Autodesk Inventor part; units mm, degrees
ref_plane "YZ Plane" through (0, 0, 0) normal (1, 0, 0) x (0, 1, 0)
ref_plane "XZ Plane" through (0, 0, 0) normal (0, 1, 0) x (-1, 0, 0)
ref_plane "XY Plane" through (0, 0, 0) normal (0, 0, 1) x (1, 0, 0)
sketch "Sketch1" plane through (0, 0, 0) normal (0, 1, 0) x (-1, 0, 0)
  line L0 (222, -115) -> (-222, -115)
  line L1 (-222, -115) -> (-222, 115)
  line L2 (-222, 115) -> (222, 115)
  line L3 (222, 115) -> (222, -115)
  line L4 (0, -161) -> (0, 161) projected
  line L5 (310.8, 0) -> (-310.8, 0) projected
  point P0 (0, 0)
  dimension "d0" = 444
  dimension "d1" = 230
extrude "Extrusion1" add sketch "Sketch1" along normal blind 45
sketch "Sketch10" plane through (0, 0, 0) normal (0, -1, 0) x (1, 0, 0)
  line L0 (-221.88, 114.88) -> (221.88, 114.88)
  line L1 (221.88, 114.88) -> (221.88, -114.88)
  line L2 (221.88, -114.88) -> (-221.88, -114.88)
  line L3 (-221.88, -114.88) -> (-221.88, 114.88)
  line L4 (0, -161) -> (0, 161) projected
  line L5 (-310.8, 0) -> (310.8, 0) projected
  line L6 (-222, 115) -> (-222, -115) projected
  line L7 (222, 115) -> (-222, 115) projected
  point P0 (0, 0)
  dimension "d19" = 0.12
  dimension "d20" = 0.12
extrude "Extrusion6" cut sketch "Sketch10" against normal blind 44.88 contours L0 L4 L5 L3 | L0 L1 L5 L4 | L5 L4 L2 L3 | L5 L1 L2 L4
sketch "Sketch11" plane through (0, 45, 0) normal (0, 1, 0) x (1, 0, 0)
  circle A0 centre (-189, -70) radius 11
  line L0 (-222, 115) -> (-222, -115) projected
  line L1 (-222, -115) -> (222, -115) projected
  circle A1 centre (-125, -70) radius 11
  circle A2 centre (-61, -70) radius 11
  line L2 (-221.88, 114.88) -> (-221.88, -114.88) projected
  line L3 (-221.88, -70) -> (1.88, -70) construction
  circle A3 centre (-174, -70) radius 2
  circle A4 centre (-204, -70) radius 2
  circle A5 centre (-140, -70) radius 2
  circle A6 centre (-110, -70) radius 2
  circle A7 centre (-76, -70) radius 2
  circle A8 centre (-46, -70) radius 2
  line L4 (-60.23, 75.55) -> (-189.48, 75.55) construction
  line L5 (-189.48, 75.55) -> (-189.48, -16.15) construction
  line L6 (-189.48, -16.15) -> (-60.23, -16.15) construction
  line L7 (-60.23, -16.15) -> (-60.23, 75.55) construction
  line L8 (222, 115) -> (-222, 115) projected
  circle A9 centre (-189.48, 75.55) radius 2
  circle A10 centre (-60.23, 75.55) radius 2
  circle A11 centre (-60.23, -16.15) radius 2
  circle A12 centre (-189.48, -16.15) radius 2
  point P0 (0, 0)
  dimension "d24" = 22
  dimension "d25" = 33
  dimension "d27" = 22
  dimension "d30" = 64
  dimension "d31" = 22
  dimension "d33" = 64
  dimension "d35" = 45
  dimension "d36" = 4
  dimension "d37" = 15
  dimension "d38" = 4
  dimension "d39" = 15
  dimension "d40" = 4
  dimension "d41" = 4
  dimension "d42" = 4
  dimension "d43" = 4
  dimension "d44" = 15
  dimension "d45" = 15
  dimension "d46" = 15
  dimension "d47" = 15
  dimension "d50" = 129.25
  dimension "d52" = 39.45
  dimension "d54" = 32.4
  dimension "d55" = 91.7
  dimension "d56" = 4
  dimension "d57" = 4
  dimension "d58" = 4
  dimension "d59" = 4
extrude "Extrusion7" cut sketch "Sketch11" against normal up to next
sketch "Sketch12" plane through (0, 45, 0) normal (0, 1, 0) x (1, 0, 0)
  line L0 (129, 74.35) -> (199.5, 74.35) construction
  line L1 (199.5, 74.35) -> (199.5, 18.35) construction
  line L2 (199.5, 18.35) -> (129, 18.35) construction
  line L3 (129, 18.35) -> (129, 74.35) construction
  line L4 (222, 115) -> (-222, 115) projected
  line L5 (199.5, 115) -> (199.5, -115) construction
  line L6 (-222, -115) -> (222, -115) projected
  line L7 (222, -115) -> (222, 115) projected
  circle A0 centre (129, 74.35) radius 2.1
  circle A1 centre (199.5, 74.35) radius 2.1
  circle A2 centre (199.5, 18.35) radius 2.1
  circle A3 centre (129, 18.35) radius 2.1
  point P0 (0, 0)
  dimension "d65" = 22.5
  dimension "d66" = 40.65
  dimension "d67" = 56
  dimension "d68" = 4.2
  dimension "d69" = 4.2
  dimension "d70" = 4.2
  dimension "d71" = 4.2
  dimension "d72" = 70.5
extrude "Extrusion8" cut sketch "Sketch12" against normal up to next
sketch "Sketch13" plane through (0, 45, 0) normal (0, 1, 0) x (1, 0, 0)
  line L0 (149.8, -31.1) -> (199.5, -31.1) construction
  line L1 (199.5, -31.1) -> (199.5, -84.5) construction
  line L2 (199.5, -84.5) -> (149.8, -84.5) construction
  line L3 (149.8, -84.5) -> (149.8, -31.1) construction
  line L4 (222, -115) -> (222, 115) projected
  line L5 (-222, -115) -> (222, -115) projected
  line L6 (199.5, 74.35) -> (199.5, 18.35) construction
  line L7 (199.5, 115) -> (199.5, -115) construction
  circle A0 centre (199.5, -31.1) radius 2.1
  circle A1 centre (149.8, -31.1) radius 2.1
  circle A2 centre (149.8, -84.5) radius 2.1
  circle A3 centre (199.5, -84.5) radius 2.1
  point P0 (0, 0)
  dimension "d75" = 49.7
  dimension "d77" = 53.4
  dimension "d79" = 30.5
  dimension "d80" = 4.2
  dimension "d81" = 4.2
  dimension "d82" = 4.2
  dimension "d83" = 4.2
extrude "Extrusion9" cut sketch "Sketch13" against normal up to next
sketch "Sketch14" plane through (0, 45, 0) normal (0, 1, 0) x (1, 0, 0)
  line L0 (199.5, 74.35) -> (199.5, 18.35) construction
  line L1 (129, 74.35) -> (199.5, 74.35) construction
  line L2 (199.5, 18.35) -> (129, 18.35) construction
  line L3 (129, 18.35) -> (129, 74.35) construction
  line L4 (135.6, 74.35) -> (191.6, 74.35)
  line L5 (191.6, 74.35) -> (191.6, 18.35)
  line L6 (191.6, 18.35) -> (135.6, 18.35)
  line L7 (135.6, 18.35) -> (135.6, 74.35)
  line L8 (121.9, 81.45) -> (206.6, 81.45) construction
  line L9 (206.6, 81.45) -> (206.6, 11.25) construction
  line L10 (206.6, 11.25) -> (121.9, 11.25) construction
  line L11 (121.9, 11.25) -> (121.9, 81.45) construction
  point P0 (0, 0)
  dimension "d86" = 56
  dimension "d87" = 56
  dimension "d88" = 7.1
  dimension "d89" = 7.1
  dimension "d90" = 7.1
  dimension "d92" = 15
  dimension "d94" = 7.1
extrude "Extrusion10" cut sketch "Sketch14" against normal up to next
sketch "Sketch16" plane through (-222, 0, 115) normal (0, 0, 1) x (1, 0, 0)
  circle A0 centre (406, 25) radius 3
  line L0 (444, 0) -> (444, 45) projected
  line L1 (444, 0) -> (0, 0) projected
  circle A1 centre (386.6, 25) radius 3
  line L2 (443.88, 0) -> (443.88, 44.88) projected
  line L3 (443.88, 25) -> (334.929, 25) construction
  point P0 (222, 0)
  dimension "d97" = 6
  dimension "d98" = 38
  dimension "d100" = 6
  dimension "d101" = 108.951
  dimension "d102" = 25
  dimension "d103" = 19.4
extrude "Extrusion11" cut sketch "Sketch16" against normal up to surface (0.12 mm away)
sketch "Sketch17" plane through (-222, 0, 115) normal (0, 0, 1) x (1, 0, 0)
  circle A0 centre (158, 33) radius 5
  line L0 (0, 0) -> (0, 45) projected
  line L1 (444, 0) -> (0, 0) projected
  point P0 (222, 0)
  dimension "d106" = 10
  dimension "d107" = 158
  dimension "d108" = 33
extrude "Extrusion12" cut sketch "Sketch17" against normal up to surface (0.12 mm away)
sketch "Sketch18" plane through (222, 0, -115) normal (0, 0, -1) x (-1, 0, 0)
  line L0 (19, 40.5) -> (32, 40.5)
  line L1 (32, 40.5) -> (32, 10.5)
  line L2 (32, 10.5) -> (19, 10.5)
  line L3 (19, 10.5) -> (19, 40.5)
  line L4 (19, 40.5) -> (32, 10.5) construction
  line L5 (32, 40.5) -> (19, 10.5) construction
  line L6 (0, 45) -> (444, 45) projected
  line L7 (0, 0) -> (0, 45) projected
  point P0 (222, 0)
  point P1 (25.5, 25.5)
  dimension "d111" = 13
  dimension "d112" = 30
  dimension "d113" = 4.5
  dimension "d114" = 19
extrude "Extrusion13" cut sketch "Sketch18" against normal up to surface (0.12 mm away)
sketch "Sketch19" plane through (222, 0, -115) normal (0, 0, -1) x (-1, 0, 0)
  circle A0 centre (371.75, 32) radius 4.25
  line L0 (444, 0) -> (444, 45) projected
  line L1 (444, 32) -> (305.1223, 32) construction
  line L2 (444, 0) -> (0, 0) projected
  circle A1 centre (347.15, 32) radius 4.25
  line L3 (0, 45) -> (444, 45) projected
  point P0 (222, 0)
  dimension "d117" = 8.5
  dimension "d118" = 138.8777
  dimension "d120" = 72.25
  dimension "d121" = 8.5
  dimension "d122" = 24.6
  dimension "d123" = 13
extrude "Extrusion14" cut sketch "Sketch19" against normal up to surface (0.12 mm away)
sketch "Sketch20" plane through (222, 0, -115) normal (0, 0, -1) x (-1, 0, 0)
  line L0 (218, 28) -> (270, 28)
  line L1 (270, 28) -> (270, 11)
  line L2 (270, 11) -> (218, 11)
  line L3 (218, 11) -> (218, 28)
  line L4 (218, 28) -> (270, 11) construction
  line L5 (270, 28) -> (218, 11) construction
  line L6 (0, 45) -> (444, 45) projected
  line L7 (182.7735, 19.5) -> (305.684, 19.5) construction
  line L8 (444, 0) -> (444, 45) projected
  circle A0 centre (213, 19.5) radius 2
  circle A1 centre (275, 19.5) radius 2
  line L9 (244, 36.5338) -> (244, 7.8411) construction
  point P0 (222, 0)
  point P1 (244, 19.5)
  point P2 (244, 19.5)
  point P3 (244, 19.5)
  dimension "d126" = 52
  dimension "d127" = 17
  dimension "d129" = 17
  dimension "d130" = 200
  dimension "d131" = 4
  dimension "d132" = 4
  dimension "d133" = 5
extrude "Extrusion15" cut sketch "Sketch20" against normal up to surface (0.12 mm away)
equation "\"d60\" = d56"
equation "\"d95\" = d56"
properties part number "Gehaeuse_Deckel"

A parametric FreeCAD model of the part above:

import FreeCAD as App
import Part
import Sketcher

V = App.Vector


def add_polygon(sketch, points):
    """Adds a closed chain of lines whose ends are joined by coincident constraints."""
    first, n = sketch.GeometryCount, len(points)
    for a, b in zip(points, points[1:] + points[:1]):
        sketch.addGeometry(Part.LineSegment(App.Vector(*a, 0), App.Vector(*b, 0)), False)
    for i in range(n):
        sketch.addConstraint(Sketcher.Constraint("Coincident", first + i, 2, first + (i + 1) % n, 1))

doc = App.newDocument("Part")
body = doc.addObject("PartDesign::Body", "Body")

# Sketch on XZ plane
sketch1 = body.newObject("Sketcher::SketchObject", "Sketch")
sketch1.AttachmentSupport = (doc.getObject("XZ_Plane"), [""])
sketch1.MapMode = "FlatFace"
add_polygon(sketch1, [(-222, -115), (-222, 115), (222, 115), (222, -115)])  # lines 0-3
sketch1.addConstraint([
    Sketcher.Constraint("Vertical", 0),
    Sketcher.Constraint("Horizontal", 1),
    Sketcher.Constraint("Vertical", 2),
    Sketcher.Constraint("Horizontal", 3),
    Sketcher.Constraint("Symmetric", 0, 2, 2, 2, -1, 1),
    Sketcher.Constraint("DistanceX", 1, 1, 1, 2, 444.0),
    Sketcher.Constraint("DistanceY", 0, 1, 0, 2, 230.0),
])
pad1 = body.newObject("PartDesign::Pad", "Pad")
pad1.Profile = sketch1
pad1.Length = 45
pad1.Reversed = True

# Sketch on XZ plane
sketch2 = body.newObject("Sketcher::SketchObject", "Sketch001")
sketch2.AttachmentSupport = (doc.getObject("XZ_Plane"), [""])
sketch2.MapMode = "FlatFace"
add_polygon(sketch2, [(-221.88, 114.88), (-221.88, -114.88), (221.88, -114.88), (221.88, 114.88)])  # lines 0-3
sketch2.addConstraint([
    Sketcher.Constraint("Vertical", 0),
    Sketcher.Constraint("Horizontal", 1),
    Sketcher.Constraint("Vertical", 2),
    Sketcher.Constraint("Horizontal", 3),
    Sketcher.Constraint("Symmetric", 0, 2, 2, 2, -1, 1),
    Sketcher.Constraint("DistanceX", 1, 1, 1, 2, 443.76),
    Sketcher.Constraint("DistanceY", 0, 2, 0, 1, 229.76),
])
pocket1 = body.newObject("PartDesign::Pocket", "Pocket")
pocket1.Profile = sketch2
pocket1.Length = 44.88

# Sketch on XZ plane
sketch3 = body.newObject("Sketcher::SketchObject", "Sketch002")
sketch3.AttachmentSupport = (doc.getObject("XZ_Plane"), [""])
sketch3.MapMode = "FlatFace"
sketch3.AttachmentOffset = App.Placement(V(0, 0, -45), App.Rotation())
sketch3.addGeometry([
    Part.Circle(V(-189, 70, 0), V(0, 0, 1), 11),  # 0
    Part.Circle(V(-125, 70, 0), V(0, 0, 1), 11),  # 1
    Part.Circle(V(-61, 70, 0), V(0, 0, 1), 11),  # 2
    Part.Circle(V(-174, 70, 0), V(0, 0, 1), 2),  # 3
    Part.Circle(V(-204, 70, 0), V(0, 0, 1), 2),  # 4
    Part.Circle(V(-140, 70, 0), V(0, 0, 1), 2),  # 5
    Part.Circle(V(-110, 70, 0), V(0, 0, 1), 2),  # 6
    Part.Circle(V(-76, 70, 0), V(0, 0, 1), 2),  # 7
    Part.Circle(V(-46, 70, 0), V(0, 0, 1), 2),  # 8
    Part.Circle(V(-189.48, -75.55, 0), V(0, 0, 1), 2),  # 9
    Part.Circle(V(-60.23, -75.55, 0), V(0, 0, 1), 2),  # 10
    Part.Circle(V(-60.23, 16.15, 0), V(0, 0, 1), 2),  # 11
    Part.Circle(V(-189.48, 16.15, 0), V(0, 0, 1), 2),  # 12
], False)
sketch3.addConstraint([
    Sketcher.Constraint("Equal", 0, 1),
    Sketcher.Constraint("Equal", 1, 2),
    Sketcher.Constraint("Equal", 3, 4),
    Sketcher.Constraint("Equal", 4, 5),
    Sketcher.Constraint("Equal", 5, 6),
    Sketcher.Constraint("Equal", 6, 7),
    Sketcher.Constraint("Equal", 7, 8),
    Sketcher.Constraint("Equal", 8, 9),
    Sketcher.Constraint("Equal", 9, 10),
    Sketcher.Constraint("Equal", 10, 11),
    Sketcher.Constraint("Equal", 11, 12),
    Sketcher.Constraint("Horizontal", 0, 3, 1, 3),
    Sketcher.Constraint("Horizontal", 1, 3, 2, 3),
    Sketcher.Constraint("Horizontal", 2, 3, 3, 3),
    Sketcher.Constraint("Horizontal", 3, 3, 4, 3),
    Sketcher.Constraint("Horizontal", 4, 3, 5, 3),
    Sketcher.Constraint("Horizontal", 5, 3, 6, 3),
    Sketcher.Constraint("Horizontal", 6, 3, 7, 3),
    Sketcher.Constraint("Horizontal", 7, 3, 8, 3),
    Sketcher.Constraint("Horizontal", 9, 3, 10, 3),
    Sketcher.Constraint("Horizontal", 11, 3, 12, 3),
    Sketcher.Constraint("Vertical", 10, 3, 11, 3),
    Sketcher.Constraint("Vertical", 9, 3, 12, 3),
    Sketcher.Constraint("Diameter", 0, 22.0),
    Sketcher.Constraint("Diameter", 3, 4.0),
    Sketcher.Constraint("DistanceX", 0, 3, 1, 3, 64.0),
    Sketcher.Constraint("DistanceX", 1, 3, 2, 3, 64.0),
    Sketcher.Constraint("DistanceX", 0, 3, 3, 3, 15.0),
    Sketcher.Constraint("DistanceX", 4, 3, 0, 3, 15.0),
    Sketcher.Constraint("DistanceX", 5, 3, 1, 3, 15.0),
    Sketcher.Constraint("DistanceX", 1, 3, 6, 3, 15.0),
    Sketcher.Constraint("DistanceX", 7, 3, 2, 3, 15.0),
    Sketcher.Constraint("DistanceX", 2, 3, 8, 3, 15.0),
    Sketcher.Constraint("DistanceX", 9, 3, 10, 3, 129.25),
    Sketcher.Constraint("DistanceX", 0, 3, -1, 1, 189.0),
    Sketcher.Constraint("DistanceY", -1, 1, 0, 3, 70.0),
    Sketcher.Constraint("DistanceX", 9, 3, -1, 1, 189.48),
    Sketcher.Constraint("DistanceY", 9, 3, -1, 1, 75.55),
    Sketcher.Constraint("DistanceY", -1, 1, 11, 3, 16.15),
])
pocket2 = body.newObject("PartDesign::Pocket", "Pocket001")
pocket2.Profile = sketch3
pocket2.Type = "UpToFirst"
pocket2.Reversed = True

# Sketch on XZ plane
sketch4 = body.newObject("Sketcher::SketchObject", "Sketch003")
sketch4.AttachmentSupport = (doc.getObject("XZ_Plane"), [""])
sketch4.MapMode = "FlatFace"
sketch4.AttachmentOffset = App.Placement(V(0, 0, -45), App.Rotation())
sketch4.addGeometry([
    Part.Circle(V(129, -74.35, 0), V(0, 0, 1), 2.1),
    Part.Circle(V(199.5, -74.35, 0), V(0, 0, 1), 2.1),
    Part.Circle(V(199.5, -18.35, 0), V(0, 0, 1), 2.1),
    Part.Circle(V(129, -18.35, 0), V(0, 0, 1), 2.1),
], False)
sketch4.addConstraint([
    Sketcher.Constraint("Equal", 0, 1),
    Sketcher.Constraint("Equal", 1, 2),
    Sketcher.Constraint("Equal", 2, 3),
    Sketcher.Constraint("Horizontal", 0, 3, 1, 3),
    Sketcher.Constraint("Horizontal", 2, 3, 3, 3),
    Sketcher.Constraint("Vertical", 1, 3, 2, 3),
    Sketcher.Constraint("Vertical", 0, 3, 3, 3),
    Sketcher.Constraint("Diameter", 0, 4.2),
    Sketcher.Constraint("DistanceY", 1, 3, 2, 3, 56.0),
    Sketcher.Constraint("DistanceX", 0, 3, 1, 3, 70.5),
    Sketcher.Constraint("DistanceX", -1, 1, 0, 3, 129.0),
    Sketcher.Constraint("DistanceY", 0, 3, -1, 1, 74.35),
])
pocket3 = body.newObject("PartDesign::Pocket", "Pocket002")
pocket3.Profile = sketch4
pocket3.Length = 0.12
pocket3.Reversed = True

# Sketch on XZ plane
sketch5 = body.newObject("Sketcher::SketchObject", "Sketch004")
sketch5.AttachmentSupport = (doc.getObject("XZ_Plane"), [""])
sketch5.MapMode = "FlatFace"
sketch5.AttachmentOffset = App.Placement(V(0, 0, -45), App.Rotation())
sketch5.addGeometry([
    Part.Circle(V(199.5, 31.1, 0), V(0, 0, 1), 2.1),
    Part.Circle(V(149.8, 31.1, 0), V(0, 0, 1), 2.1),
    Part.Circle(V(149.8, 84.5, 0), V(0, 0, 1), 2.1),
    Part.Circle(V(199.5, 84.5, 0), V(0, 0, 1), 2.1),
], False)
sketch5.addConstraint([
    Sketcher.Constraint("Equal", 0, 1),
    Sketcher.Constraint("Equal", 1, 2),
    Sketcher.Constraint("Equal", 2, 3),
    Sketcher.Constraint("Horizontal", 0, 3, 1, 3),
    Sketcher.Constraint("Horizontal", 2, 3, 3, 3),
    Sketcher.Constraint("Vertical", 1, 3, 2, 3),
    Sketcher.Constraint("Vertical", 0, 3, 3, 3),
    Sketcher.Constraint("Diameter", 0, 4.2),
    Sketcher.Constraint("DistanceX", 1, 3, 0, 3, 49.7),
    Sketcher.Constraint("DistanceY", 1, 3, 2, 3, 53.4),
    Sketcher.Constraint("DistanceX", -1, 1, 0, 3, 199.5),
    Sketcher.Constraint("DistanceY", -1, 1, 0, 3, 31.1),
])
pocket4 = body.newObject("PartDesign::Pocket", "Pocket003")
pocket4.Profile = sketch5
pocket4.Type = "UpToFirst"
pocket4.Reversed = True

# Sketch on XZ plane
sketch6 = body.newObject("Sketcher::SketchObject", "Sketch005")
sketch6.AttachmentSupport = (doc.getObject("XZ_Plane"), [""])
sketch6.MapMode = "FlatFace"
sketch6.AttachmentOffset = App.Placement(V(0, 0, -45), App.Rotation())
add_polygon(sketch6, [(191.6, -74.35), (135.6, -74.35), (135.6, -18.35), (191.6, -18.35)])  # lines 0-3
sketch6.addConstraint([
    Sketcher.Constraint("Horizontal", 0),
    Sketcher.Constraint("Vertical", 1),
    Sketcher.Constraint("Horizontal", 2),
    Sketcher.Constraint("Vertical", 3),
    Sketcher.Constraint("Equal", 2, 1),
    Sketcher.Constraint("DistanceX", 0, 2, 0, 1, 56.0),
    Sketcher.Constraint("DistanceX", -1, 1, 0, 2, 135.6),
    Sketcher.Constraint("DistanceY", 0, 2, -1, 1, 74.35),
])
pocket5 = body.newObject("PartDesign::Pocket", "Pocket004")
pocket5.Profile = sketch6
pocket5.Type = "UpToFirst"
pocket5.Reversed = True

# Sketch on XY plane
sketch7 = body.newObject("Sketcher::SketchObject", "Sketch006")
sketch7.AttachmentSupport = (doc.getObject("XY_Plane"), [""])
sketch7.MapMode = "FlatFace"
sketch7.AttachmentOffset = App.Placement(V(0, 0, 115), App.Rotation())
sketch7.addGeometry([
    Part.Circle(V(184, 25, 0), V(0, 0, 1), 3),
    Part.Circle(V(164.6, 25, 0), V(0, 0, 1), 3),
], False)
sketch7.addConstraint([
    Sketcher.Constraint("Equal", 0, 1),
    Sketcher.Constraint("Horizontal", 0, 3, 1, 3),
    Sketcher.Constraint("Diameter", 0, 6.0),
    Sketcher.Constraint("DistanceY", -1, 1, 0, 3, 25.0),
    Sketcher.Constraint("DistanceX", 1, 3, 0, 3, 19.4),
    Sketcher.Constraint("DistanceX", -1, 1, 0, 3, 184.0),
])
pocket6 = body.newObject("PartDesign::Pocket", "Pocket005")
pocket6.Profile = sketch7
pocket6.Length = 0.12

# Sketch on XY plane
sketch8 = body.newObject("Sketcher::SketchObject", "Sketch007")
sketch8.AttachmentSupport = (doc.getObject("XY_Plane"), [""])
sketch8.MapMode = "FlatFace"
sketch8.AttachmentOffset = App.Placement(V(0, 0, 115), App.Rotation())
sketch8.addGeometry(Part.Circle(V(-64, 33, 0), V(0, 0, 1), 5), False)
sketch8.addConstraint([
    Sketcher.Constraint("Diameter", 0, 10.0),
    Sketcher.Constraint("DistanceY", -1, 1, 0, 3, 33.0),
    Sketcher.Constraint("DistanceX", 0, 3, -1, 1, 64.0),
])
pocket7 = body.newObject("PartDesign::Pocket", "Pocket006")
pocket7.Profile = sketch8
pocket7.Length = 0.12

# Sketch on XY plane
sketch9 = body.newObject("Sketcher::SketchObject", "Sketch008")
sketch9.AttachmentSupport = (doc.getObject("XY_Plane"), [""])
sketch9.MapMode = "FlatFace"
sketch9.AttachmentOffset = App.Placement(V(0, 0, -115), App.Rotation())
add_polygon(sketch9, [(190, 40.5), (203, 40.5), (203, 10.5), (190, 10.5)])  # lines 0-3
sketch9.addConstraint([
    Sketcher.Constraint("Horizontal", 0),
    Sketcher.Constraint("Vertical", 1),
    Sketcher.Constraint("Horizontal", 2),
    Sketcher.Constraint("Vertical", 3),
    Sketcher.Constraint("DistanceX", 0, 1, 0, 2, 13.0),
    Sketcher.Constraint("DistanceY", 1, 2, 1, 1, 30.0),
    Sketcher.Constraint("DistanceX", -1, 1, 0, 2, 203.0),
    Sketcher.Constraint("DistanceY", -1, 1, 0, 2, 40.5),
])
pocket8 = body.newObject("PartDesign::Pocket", "Pocket007")
pocket8.Profile = sketch9
pocket8.Length = 0.12
pocket8.Reversed = True

# Sketch on XY plane
sketch10 = body.newObject("Sketcher::SketchObject", "Sketch009")
sketch10.AttachmentSupport = (doc.getObject("XY_Plane"), [""])
sketch10.MapMode = "FlatFace"
sketch10.AttachmentOffset = App.Placement(V(0, 0, -115), App.Rotation())
sketch10.addGeometry([
    Part.Circle(V(-149.75, 32, 0), V(0, 0, 1), 4.25),
    Part.Circle(V(-125.15, 32, 0), V(0, 0, 1), 4.25),
], False)
sketch10.addConstraint([
    Sketcher.Constraint("Equal", 0, 1),
    Sketcher.Constraint("Horizontal", 0, 3, 1, 3),
    Sketcher.Constraint("Diameter", 0, 8.5),
    Sketcher.Constraint("DistanceX", 0, 3, 1, 3, 24.6),
    Sketcher.Constraint("DistanceY", -1, 1, 0, 3, 32.0),
    Sketcher.Constraint("DistanceX", 0, 3, -1, 1, 149.75),
])
pocket9 = body.newObject("PartDesign::Pocket", "Pocket008")
pocket9.Profile = sketch10
pocket9.Length = 0.12
pocket9.Reversed = True

# Sketch on XY plane
sketch11 = body.newObject("Sketcher::SketchObject", "Sketch010")
sketch11.AttachmentSupport = (doc.getObject("XY_Plane"), [""])
sketch11.MapMode = "FlatFace"
sketch11.AttachmentOffset = App.Placement(V(0, 0, -115), App.Rotation())
add_polygon(sketch11, [(-48, 28), (4, 28), (4, 11), (-48, 11)])  # lines 0-3
sketch11.addGeometry(Part.Circle(V(9, 19.5, 0), V(0, 0, 1), 2), False)  # 4
sketch11.addGeometry(Part.Circle(V(-53, 19.5, 0), V(0, 0, 1), 2), False)  # 5
sketch11.addConstraint([
    Sketcher.Constraint("Horizontal", 0),
    Sketcher.Constraint("Vertical", 1),
    Sketcher.Constraint("Horizontal", 2),
    Sketcher.Constraint("Vertical", 3),
    Sketcher.Constraint("Equal", 4, 5),
    Sketcher.Constraint("Horizontal", 4, 3, 5, 3),
    Sketcher.Constraint("Diameter", 4, 4.0),
    Sketcher.Constraint("DistanceX", 0, 1, 0, 2, 52.0),
    Sketcher.Constraint("DistanceY", 1, 2, 1, 1, 17.0),
    Sketcher.Constraint("DistanceX", -1, 1, 0, 2, 4.0),
    Sketcher.Constraint("DistanceX", 0, 2, 4, 3, 5.0),
    Sketcher.Constraint("DistanceX", 5, 3, 2, 2, 5.0),
    Sketcher.Constraint("DistanceY", -1, 1, 0, 2, 28.0),
    Sketcher.Constraint("DistanceY", -1, 1, 4, 3, 19.5),
])
pocket10 = body.newObject("PartDesign::Pocket", "Pocket009")
pocket10.Profile = sketch11
pocket10.Length = 0.12
pocket10.Reversed = True

doc.recompute()
